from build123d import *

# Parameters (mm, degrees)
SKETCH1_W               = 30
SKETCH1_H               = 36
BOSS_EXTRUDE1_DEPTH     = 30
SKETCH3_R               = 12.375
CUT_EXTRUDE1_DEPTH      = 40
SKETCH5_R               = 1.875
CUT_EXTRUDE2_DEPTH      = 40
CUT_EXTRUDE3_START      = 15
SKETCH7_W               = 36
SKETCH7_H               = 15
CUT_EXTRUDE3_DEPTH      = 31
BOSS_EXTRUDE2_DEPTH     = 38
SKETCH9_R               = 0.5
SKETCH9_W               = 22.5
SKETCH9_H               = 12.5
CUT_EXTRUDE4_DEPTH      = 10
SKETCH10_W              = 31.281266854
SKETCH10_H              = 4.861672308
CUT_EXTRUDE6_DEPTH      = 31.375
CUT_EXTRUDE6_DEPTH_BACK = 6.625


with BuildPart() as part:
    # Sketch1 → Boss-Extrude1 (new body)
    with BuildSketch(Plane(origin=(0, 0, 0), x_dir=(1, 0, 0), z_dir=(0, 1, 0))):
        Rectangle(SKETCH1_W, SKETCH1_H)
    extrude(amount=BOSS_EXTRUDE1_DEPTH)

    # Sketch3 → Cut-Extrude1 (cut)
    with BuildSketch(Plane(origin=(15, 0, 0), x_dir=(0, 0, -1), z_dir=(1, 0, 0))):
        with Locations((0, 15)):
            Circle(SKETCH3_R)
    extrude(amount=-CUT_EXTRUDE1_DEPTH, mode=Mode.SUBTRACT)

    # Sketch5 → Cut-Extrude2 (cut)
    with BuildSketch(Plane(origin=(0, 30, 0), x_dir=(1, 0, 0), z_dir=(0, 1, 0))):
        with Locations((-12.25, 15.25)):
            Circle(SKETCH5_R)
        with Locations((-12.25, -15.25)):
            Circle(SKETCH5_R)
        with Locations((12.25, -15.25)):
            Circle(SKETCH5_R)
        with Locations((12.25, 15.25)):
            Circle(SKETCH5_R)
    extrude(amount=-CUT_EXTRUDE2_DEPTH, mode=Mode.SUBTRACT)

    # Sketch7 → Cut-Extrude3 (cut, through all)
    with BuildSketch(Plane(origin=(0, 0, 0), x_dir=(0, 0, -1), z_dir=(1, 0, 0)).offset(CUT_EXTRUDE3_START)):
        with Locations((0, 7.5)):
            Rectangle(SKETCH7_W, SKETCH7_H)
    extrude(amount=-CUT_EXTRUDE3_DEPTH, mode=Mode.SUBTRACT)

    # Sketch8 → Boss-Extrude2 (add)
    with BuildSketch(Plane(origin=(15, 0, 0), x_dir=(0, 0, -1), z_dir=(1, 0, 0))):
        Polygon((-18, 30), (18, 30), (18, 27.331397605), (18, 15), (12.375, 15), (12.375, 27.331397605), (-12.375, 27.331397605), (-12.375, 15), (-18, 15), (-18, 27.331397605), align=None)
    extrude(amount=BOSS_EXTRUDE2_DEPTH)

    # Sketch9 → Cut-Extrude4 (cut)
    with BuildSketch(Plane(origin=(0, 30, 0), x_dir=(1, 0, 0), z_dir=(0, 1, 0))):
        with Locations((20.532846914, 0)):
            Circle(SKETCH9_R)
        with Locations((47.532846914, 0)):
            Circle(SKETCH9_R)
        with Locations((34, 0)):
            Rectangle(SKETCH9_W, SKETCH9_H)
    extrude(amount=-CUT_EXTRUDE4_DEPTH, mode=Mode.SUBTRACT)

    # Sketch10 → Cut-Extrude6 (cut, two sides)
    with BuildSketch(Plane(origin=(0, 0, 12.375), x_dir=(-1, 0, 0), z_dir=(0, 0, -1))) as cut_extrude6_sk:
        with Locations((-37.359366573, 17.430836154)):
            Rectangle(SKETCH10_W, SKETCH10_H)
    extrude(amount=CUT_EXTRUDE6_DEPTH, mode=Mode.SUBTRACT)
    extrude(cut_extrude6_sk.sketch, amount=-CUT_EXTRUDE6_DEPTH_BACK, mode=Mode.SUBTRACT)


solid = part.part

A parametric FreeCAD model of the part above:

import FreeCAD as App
import Part
import Sketcher
Q = App.Units.Quantity


def add_polygon(sketch, points):
    """Adds a closed chain of lines whose ends are joined by coincident constraints."""
    first, n = sketch.GeometryCount, len(points)
    for a, b in zip(points, points[1:] + points[:1]):
        sketch.addGeometry(Part.LineSegment(App.Vector(*a, 0), App.Vector(*b, 0)), False)
    for i in range(n):
        sketch.addConstraint(Sketcher.Constraint("Coincident", first + i, 2, first + (i + 1) % n, 1))

doc = App.newDocument("Part")
params = doc.addObject("Spreadsheet::Sheet", "Params")
for row, (alias, value) in enumerate([
    ("sketch1_width", "30 mm"),
    ("sketch1_height", "36 mm"),
    ("pad1_length", "30 mm"),
    ("sketch2_diameter", "24.75 mm"),
    ("pocket1_length", "40 mm"),
    ("sketch3_diameter", "3.75 mm"),
    ("pocket2_length", "40 mm"),
    ("sketch4_width", "15 mm"),
    ("sketch4_height", "36 mm"),
    ("sketch5_width", "15 mm"),
    ("sketch5_height", "36 mm"),
    ("sketch5_height2", "24.75 mm"),
    ("pad2_length", "38 mm"),
    ("sketch6_diameter", "1 mm"),
    ("sketch6_width", "22.5 mm"),
    ("sketch6_height", "12.5 mm"),
    ("pocket4_length", "10 mm"),
], start=1):
    params.set(f"A{row}", alias)
    params.set(f"B{row}", "=" + value)
    params.setAlias(f"B{row}", alias)

body = doc.addObject("PartDesign::Body", "Body")

sketch1 = body.newObject("Sketcher::SketchObject", "Sketch")
sketch1.AttachmentSupport = (doc.getObject("XZ_Plane"), [""])
sketch1.MapMode = "FlatFace"
add_polygon(sketch1, [(-15, -18), (-15, 18), (15, 18), (15, -18)])
sketch1.addConstraint([
    Sketcher.Constraint("Vertical", 0),
    Sketcher.Constraint("Horizontal", 1),
    Sketcher.Constraint("Vertical", 2),
    Sketcher.Constraint("Horizontal", 3),
    Sketcher.Constraint("Symmetric", 0, 2, 2, 2, -1, 1),
    Sketcher.Constraint("DistanceX", 1, 1, 1, 2, Q("30 mm")),
    Sketcher.Constraint("DistanceY", 0, 1, 0, 2, Q("36 mm")),
])
sketch1.setExpression("Constraints[9]", "Params.sketch1_width")
sketch1.setExpression("Constraints[10]", "Params.sketch1_height")
pad1 = body.newObject("PartDesign::Pad", "Pad")
pad1.Profile = sketch1
pad1.setExpression("Length", "Params.pad1_length")
pad1.Reversed = True

sketch2 = body.newObject("Sketcher::SketchObject", "Sketch001")
sketch2.AttachmentSupport = (doc.getObject("YZ_Plane"), [""])
sketch2.MapMode = "FlatFace"
sketch2.AttachmentOffset = App.Placement(App.Vector(0, 0, 15), App.Rotation())
sketch2.addGeometry(Part.Circle(App.Vector(15, 0, 0), App.Vector(0, 0, 1), 12), False)
sketch2.addConstraint([
    Sketcher.Constraint("PointOnObject", 0, 3, -1),
    Sketcher.Constraint("Diameter", 0, Q("24.75 mm")),
    Sketcher.Constraint("DistanceX", -1, 1, 0, 3, Q("15 mm")),
])
sketch2.setExpression("Constraints[1]", "Params.sketch2_diameter")
pocket1 = body.newObject("PartDesign::Pocket", "Pocket")
pocket1.Profile = sketch2
pocket1.setExpression("Length", "Params.pocket1_length")

sketch3 = body.newObject("Sketcher::SketchObject", "Sketch002")
sketch3.AttachmentSupport = (doc.getObject("XZ_Plane"), [""])
sketch3.MapMode = "FlatFace"
sketch3.AttachmentOffset = App.Placement(App.Vector(0, 0, -30), App.Rotation())
sketch3.addGeometry([
    Part.Circle(App.Vector(-12.2, -15.2, 0), App.Vector(0, 0, 1), 1.9),
    Part.Circle(App.Vector(-12.2, 15.2, 0), App.Vector(0, 0, 1), 1.9),
    Part.Circle(App.Vector(12.2, 15.2, 0), App.Vector(0, 0, 1), 1.9),
    Part.Circle(App.Vector(12.2, -15.2, 0), App.Vector(0, 0, 1), 1.9),
], False)
sketch3.addConstraint([
    Sketcher.Constraint("Equal", 0, 1),
    Sketcher.Constraint("Equal", 1, 2),
    Sketcher.Constraint("Equal", 2, 3),
    Sketcher.Constraint("Symmetric", 0, 3, 2, 3, -1, 1),
    Sketcher.Constraint("Symmetric", 1, 3, 3, 3, -1, 1),
    Sketcher.Constraint("Symmetric", 1, 3, 2, 3, -2),
    Sketcher.Constraint("Diameter", 0, Q("3.75 mm")),
    Sketcher.Constraint("DistanceY", 0, 3, 1, 3, Q("30.5 mm")),
    Sketcher.Constraint("DistanceX", 1, 3, 2, 3, Q("24.5 mm")),
])
sketch3.setExpression("Constraints[6]", "Params.sketch3_diameter")
pocket2 = body.newObject("PartDesign::Pocket", "Pocket001")
pocket2.Profile = sketch3
pocket2.setExpression("Length", "Params.pocket2_length")
pocket2.Reversed = True

sketch4 = body.newObject("Sketcher::SketchObject", "Sketch003")
sketch4.AttachmentSupport = (doc.getObject("YZ_Plane"), [""])
sketch4.MapMode = "FlatFace"
sketch4.AttachmentOffset = App.Placement(App.Vector(0, 0, 15), App.Rotation())
add_polygon(sketch4, [(15, 18), (0, 18), (0, -18), (15, -18)])
sketch4.addConstraint([
    Sketcher.Constraint("Horizontal", 0),
    Sketcher.Constraint("Vertical", 1),
    Sketcher.Constraint("Horizontal", 2),
    Sketcher.Constraint("Vertical", 3),
    Sketcher.Constraint("Symmetric", 0, 2, 1, 2, -1, 1),
    Sketcher.Constraint("DistanceX", 0, 2, 0, 1, Q("15 mm")),
    Sketcher.Constraint("DistanceY", 1, 2, 1, 1, Q("36 mm")),
])
sketch4.setExpression("Constraints[9]", "Params.sketch4_width")
sketch4.setExpression("Constraints[10]", "Params.sketch4_height")
pocket3 = body.newObject("PartDesign::Pocket", "Pocket002")
pocket3.Profile = sketch4
pocket3.Type = "ThroughAll"

sketch5 = body.newObject("Sketcher::SketchObject", "Sketch004")
sketch5.AttachmentSupport = (doc.getObject("YZ_Plane"), [""])
sketch5.MapMode = "FlatFace"
sketch5.AttachmentOffset = App.Placement(App.Vector(0, 0, 15), App.Rotation())
add_polygon(sketch5, [(30, -18), (30, 18), (15, 18), (15, 12), (27, 12), (27, -12), (15, -12), (15, -18)])
sketch5.addConstraint([
    Sketcher.Constraint("Vertical", 0),
    Sketcher.Constraint("Horizontal", 1),
    Sketcher.Constraint("Vertical", 2),
    Sketcher.Constraint("Horizontal", 3),
    Sketcher.Constraint("Vertical", 4),
    Sketcher.Constraint("Horizontal", 5),
    Sketcher.Constraint("Vertical", 6),
    Sketcher.Constraint("Horizontal", 7),
    Sketcher.Constraint("Symmetric", 2, 2, 5, 2, -1),
    Sketcher.Constraint("Equal", 2, 6),
    Sketcher.Constraint("DistanceX", 1, 2, 1, 1, Q("15 mm")),
    Sketcher.Constraint("DistanceY", 0, 1, 0, 2, Q("36 mm")),
    Sketcher.Constraint("DistanceX", -1, 1, 0, 2, Q("30 mm")),
    Sketcher.Constraint("DistanceY", 4, 2, 4, 1, Q("24.75 mm")),
    Sketcher.Constraint("DistanceX", 3, 1, 3, 2, Q("12.331398 mm")),
])
sketch5.setExpression("Constraints[18]", "Params.sketch5_width")
sketch5.setExpression("Constraints[19]", "Params.sketch5_height")
sketch5.setExpression("Constraints[21]", "Params.sketch5_height2")
pad2 = body.newObject("PartDesign::Pad", "Pad001")
pad2.Profile = sketch5
pad2.setExpression("Length", "Params.pad2_length")

sketch6 = body.newObject("Sketcher::SketchObject", "Sketch005")
sketch6.AttachmentSupport = (doc.getObject("XZ_Plane"), [""])
sketch6.MapMode = "FlatFace"
sketch6.AttachmentOffset = App.Placement(App.Vector(0, 0, -30), App.Rotation())
sketch6.addGeometry(Part.Circle(App.Vector(20.5, 0, 0), App.Vector(0, 0, 1), 0.5), False)
sketch6.addGeometry(Part.Circle(App.Vector(47.5, 0, 0), App.Vector(0, 0, 1), 0.5), False)
add_polygon(sketch6, [(22.8, -6.2), (22.8, 6.2), (45.2, 6.2), (45.2, -6.2)])
sketch6.addConstraint([
    Sketcher.Constraint("Vertical", 2),
    Sketcher.Constraint("Horizontal", 3),
    Sketcher.Constraint("Vertical", 4),
    Sketcher.Constraint("Horizontal", 5),
    Sketcher.Constraint("Equal", 0, 1),
    Sketcher.Constraint("PointOnObject", 0, 3, -1),
    Sketcher.Constraint("PointOnObject", 1, 3, -1),
    Sketcher.Constraint("Diameter", 0, Q("1 mm")),
    Sketcher.Constraint("DistanceX", 3, 1, 3, 2, Q("22.5 mm")),
    Sketcher.Constraint("DistanceY", 2, 1, 2, 2, Q("12.5 mm")),
    Sketcher.Constraint("DistanceX", 0, 3, 1, 3, Q("27 mm")),
    Sketcher.Constraint("DistanceX", -1, 1, 2, 2, Q("22.75 mm")),
    Sketcher.Constraint("DistanceY", -1, 1, 2, 2, Q("6.25 mm")),
    Sketcher.Constraint("DistanceX", -1, 1, 0, 3, Q("20.532847 mm")),
])
sketch6.setExpression("Constraints[11]", "Params.sketch6_diameter")
sketch6.setExpression("Constraints[12]", "Params.sketch6_width")
sketch6.setExpression("Constraints[13]", "Params.sketch6_height")
pocket4 = body.newObject("PartDesign::Pocket", "Pocket003")
pocket4.Profile = sketch6
pocket4.setExpression("Length", "Params.pocket4_length")
pocket4.Reversed = True

sketch7 = body.newObject("Sketcher::SketchObject", "Sketch006")
sketch7.AttachmentSupport = (doc.getObject("XY_Plane"), [""])
sketch7.MapMode = "FlatFace"
sketch7.AttachmentOffset = App.Placement(App.Vector(0, 0, 12.375), App.Rotation())
add_polygon(sketch7, [(53, 19.9), (53, 15), (21.7, 15), (21.7, 19.9)])
sketch7.addConstraint([
    Sketcher.Constraint("Vertical", 0),
    Sketcher.Constraint("Horizontal", 1),
    Sketcher.Constraint("Vertical", 2),
    Sketcher.Constraint("Horizontal", 3),
    Sketcher.Constraint("DistanceX", -1, 1, 0, 2, Q("53 mm")),
    Sketcher.Constraint("DistanceY", -1, 1, 0, 2, Q("15 mm")),
    Sketcher.Constraint("DistanceX", 1, 2, 1, 1, Q("31.281267 mm")),
    Sketcher.Constraint("DistanceY", 0, 2, 0, 1, Q("4.861672 mm")),
])
pocket5 = body.newObject("PartDesign::Pocket", "Pocket004")
pocket5.Profile = sketch7
pocket5.Type = "ThroughAll"
pocket5.Midplane = True

doc.recompute()
